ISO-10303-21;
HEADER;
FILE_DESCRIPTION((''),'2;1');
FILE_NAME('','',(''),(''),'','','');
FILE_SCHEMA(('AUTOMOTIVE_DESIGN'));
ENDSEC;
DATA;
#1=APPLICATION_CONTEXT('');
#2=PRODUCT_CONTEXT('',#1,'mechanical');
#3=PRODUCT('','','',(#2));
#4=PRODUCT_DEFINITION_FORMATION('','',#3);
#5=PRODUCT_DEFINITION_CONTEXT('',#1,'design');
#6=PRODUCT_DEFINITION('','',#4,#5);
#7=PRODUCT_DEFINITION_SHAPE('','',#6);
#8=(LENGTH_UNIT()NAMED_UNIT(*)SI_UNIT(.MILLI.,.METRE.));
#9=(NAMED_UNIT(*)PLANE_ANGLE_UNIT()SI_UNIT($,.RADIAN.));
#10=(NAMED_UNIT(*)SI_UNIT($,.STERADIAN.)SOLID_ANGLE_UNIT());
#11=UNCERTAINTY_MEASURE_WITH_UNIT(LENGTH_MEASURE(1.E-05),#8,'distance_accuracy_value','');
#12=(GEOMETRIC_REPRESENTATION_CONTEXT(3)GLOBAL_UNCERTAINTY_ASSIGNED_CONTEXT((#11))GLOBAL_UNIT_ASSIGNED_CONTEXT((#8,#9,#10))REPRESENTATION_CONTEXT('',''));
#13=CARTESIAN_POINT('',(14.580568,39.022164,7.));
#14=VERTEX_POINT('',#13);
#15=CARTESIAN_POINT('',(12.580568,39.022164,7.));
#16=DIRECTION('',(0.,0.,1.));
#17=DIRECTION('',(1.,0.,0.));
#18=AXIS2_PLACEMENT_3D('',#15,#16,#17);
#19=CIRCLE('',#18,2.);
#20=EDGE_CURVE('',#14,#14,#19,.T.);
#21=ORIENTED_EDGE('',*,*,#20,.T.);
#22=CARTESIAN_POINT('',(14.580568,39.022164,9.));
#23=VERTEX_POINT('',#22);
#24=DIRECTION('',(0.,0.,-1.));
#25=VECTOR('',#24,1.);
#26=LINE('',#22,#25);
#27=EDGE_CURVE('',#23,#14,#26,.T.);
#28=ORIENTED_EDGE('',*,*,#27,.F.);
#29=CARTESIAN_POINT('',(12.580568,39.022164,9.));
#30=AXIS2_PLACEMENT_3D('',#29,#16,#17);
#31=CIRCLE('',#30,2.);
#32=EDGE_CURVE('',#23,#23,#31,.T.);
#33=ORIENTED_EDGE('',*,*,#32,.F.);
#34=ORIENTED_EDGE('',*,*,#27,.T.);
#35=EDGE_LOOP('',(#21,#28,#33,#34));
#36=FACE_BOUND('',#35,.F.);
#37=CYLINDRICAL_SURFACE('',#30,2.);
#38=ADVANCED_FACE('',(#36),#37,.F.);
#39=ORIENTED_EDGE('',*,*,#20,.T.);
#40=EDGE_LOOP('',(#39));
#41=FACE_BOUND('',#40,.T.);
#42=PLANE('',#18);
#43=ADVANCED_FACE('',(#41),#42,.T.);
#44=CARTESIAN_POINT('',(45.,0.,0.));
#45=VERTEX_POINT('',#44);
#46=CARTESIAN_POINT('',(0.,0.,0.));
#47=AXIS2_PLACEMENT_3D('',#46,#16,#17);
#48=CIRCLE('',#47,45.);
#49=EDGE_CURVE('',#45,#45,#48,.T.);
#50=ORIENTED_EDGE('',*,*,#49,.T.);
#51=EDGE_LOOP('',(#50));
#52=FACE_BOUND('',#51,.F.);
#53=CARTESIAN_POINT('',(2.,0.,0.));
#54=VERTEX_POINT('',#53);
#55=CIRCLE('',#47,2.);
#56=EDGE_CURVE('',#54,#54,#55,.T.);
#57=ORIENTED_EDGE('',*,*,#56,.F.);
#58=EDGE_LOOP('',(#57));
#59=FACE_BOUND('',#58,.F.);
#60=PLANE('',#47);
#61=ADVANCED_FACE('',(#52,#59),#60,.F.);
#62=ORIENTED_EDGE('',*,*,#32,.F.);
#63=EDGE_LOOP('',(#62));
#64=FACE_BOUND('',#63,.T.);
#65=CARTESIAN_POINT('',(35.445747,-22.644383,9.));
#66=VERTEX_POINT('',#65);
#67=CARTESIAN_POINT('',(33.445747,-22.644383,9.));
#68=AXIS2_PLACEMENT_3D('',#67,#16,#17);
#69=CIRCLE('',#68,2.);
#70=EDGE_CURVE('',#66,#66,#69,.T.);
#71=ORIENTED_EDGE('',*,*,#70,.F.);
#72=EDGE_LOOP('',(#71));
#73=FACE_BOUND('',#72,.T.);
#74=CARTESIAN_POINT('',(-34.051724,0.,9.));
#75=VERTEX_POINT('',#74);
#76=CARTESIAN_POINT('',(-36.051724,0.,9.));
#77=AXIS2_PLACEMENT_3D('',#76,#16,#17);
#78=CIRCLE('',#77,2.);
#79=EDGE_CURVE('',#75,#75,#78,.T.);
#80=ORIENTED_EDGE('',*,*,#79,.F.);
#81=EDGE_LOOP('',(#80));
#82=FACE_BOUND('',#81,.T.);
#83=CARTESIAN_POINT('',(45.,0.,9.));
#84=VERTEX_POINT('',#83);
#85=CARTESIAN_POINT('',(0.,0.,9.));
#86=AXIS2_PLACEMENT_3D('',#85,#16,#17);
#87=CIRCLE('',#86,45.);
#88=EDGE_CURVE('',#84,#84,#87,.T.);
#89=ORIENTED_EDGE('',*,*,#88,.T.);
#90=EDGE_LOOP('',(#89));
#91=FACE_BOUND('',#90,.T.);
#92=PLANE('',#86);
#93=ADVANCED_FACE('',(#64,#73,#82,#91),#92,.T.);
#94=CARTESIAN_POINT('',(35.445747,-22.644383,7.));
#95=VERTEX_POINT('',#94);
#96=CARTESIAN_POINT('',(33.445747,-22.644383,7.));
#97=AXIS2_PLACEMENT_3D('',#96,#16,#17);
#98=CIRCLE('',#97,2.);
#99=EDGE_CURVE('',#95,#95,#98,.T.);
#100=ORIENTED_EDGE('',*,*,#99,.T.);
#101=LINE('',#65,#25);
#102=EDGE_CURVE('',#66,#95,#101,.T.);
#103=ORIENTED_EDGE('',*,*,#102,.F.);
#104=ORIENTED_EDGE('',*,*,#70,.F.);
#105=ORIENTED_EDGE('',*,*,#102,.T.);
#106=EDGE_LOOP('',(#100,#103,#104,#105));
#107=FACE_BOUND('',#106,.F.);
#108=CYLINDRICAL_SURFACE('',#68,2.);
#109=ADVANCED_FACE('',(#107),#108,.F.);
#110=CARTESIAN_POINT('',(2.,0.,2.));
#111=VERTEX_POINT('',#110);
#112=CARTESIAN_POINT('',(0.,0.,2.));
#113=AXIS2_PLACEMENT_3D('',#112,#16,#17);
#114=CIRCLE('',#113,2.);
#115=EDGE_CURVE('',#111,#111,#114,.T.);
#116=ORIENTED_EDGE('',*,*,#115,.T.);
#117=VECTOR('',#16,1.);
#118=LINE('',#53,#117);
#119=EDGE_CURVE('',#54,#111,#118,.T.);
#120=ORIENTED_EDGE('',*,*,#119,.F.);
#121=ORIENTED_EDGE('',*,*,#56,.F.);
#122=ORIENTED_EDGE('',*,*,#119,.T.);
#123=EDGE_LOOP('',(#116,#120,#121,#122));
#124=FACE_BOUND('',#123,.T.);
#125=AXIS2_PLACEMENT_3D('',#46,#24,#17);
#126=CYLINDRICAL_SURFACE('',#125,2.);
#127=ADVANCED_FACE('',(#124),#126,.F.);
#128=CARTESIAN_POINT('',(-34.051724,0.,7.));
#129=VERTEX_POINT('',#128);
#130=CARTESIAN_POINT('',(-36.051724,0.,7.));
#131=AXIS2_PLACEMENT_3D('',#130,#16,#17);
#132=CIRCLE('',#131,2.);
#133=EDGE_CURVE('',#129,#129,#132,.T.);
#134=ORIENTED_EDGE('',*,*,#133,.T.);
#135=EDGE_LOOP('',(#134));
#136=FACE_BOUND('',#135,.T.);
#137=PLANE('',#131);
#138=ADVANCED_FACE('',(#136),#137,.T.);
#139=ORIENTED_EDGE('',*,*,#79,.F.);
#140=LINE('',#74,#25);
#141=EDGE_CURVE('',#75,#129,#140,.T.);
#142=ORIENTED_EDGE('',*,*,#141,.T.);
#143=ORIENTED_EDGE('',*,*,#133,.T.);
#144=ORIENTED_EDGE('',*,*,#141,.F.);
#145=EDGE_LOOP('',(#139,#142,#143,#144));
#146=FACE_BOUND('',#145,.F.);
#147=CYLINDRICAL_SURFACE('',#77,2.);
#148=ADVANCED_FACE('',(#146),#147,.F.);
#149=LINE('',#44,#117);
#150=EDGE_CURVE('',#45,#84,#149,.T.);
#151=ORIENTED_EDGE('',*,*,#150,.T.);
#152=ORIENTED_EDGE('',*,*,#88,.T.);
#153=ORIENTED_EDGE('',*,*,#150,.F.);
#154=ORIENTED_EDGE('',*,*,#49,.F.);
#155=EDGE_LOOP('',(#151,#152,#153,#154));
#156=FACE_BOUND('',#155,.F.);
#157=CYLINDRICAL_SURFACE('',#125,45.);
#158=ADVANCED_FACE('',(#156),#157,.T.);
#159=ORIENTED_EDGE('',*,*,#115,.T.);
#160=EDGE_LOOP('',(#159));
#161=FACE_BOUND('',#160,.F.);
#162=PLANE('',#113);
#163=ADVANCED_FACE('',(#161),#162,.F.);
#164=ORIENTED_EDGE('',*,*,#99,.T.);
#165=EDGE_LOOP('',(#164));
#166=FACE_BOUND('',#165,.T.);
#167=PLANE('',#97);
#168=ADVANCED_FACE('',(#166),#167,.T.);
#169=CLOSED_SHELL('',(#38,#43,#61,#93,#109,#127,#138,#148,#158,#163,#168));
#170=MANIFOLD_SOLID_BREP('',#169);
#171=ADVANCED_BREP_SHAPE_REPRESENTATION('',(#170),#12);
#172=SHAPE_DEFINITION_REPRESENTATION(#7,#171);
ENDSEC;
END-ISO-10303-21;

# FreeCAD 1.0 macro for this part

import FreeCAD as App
import Part
import Sketcher

doc = App.newDocument("Part")
body = doc.addObject("PartDesign::Body", "Body")

sketch1 = body.newObject("Sketcher::SketchObject", "Sketch")
sketch1.AttachmentSupport = (doc.getObject("XY_Plane"), [""])
sketch1.MapMode = "FlatFace"
sketch1.addGeometry(Part.Circle(App.Vector(0, 0, 0), App.Vector(0, 0, 1), 45), False)
sketch1.addConstraint(Sketcher.Constraint("Coincident", 0, 3, -1, 1))
sketch1.addConstraint(Sketcher.Constraint("Diameter", 0, 90.0))
pad1 = body.newObject("PartDesign::Pad", "Pad")
pad1.Profile = sketch1
pad1.Length = 9

sketch2 = body.newObject("Sketcher::SketchObject", "Sketch001")
sketch2.AttachmentSupport = (doc.getObject("XY_Plane"), [""])
sketch2.MapMode = "FlatFace"
sketch2.addGeometry(Part.Circle(App.Vector(0, 0, 0), App.Vector(0, 0, 1), 2), False)
sketch2.addConstraint(Sketcher.Constraint("Coincident", 0, 3, -1, 1))
sketch2.addConstraint(Sketcher.Constraint("Diameter", 0, 4.0))
pocket1 = body.newObject("PartDesign::Pocket", "Pocket")
pocket1.Profile = sketch2
pocket1.Length = 2
pocket1.Reversed = True

sketch3 = body.newObject("Sketcher::SketchObject", "Sketch002")
sketch3.AttachmentSupport = (doc.getObject("XY_Plane"), [""])
sketch3.MapMode = "FlatFace"
sketch3.AttachmentOffset = App.Placement(App.Vector(0, 0, 9), App.Rotation())
sketch3.addGeometry(Part.Circle(App.Vector(-36.1, 0, 0), App.Vector(0, 0, 1), 2), False)
sketch3.addGeometry(Part.Circle(App.Vector(12.6, 39, 0), App.Vector(0, 0, 1), 2), False)
sketch3.addGeometry(Part.Circle(App.Vector(33.4, -22.6, 0), App.Vector(0, 0, 1), 2), False)
sketch3.addConstraint(Sketcher.Constraint("Equal", 0, 1))
sketch3.addConstraint(Sketcher.Constraint("Equal", 1, 2))
sketch3.addConstraint(Sketcher.Constraint("PointOnObject", 0, 3, -1))
sketch3.addConstraint(Sketcher.Constraint("Diameter", 0, 4.0))
sketch3.addConstraint(Sketcher.Constraint("DistanceX", 1, 3, 2, 3, 20.865179))
sketch3.addConstraint(Sketcher.Constraint("DistanceX", 0, 3, 2, 3, 69.497471))
sketch3.addConstraint(Sketcher.Constraint("DistanceX", 0, 3, -1, 1, 36.051724))
sketch3.addConstraint(Sketcher.Constraint("DistanceY", -1, 1, 1, 3, 39.022164))
sketch3.addConstraint(Sketcher.Constraint("DistanceY", 2, 3, -1, 1, 22.644383))
pocket2 = body.newObject("PartDesign::Pocket", "Pocket001")
pocket2.Profile = sketch3
pocket2.Length = 2

doc.recompute()
